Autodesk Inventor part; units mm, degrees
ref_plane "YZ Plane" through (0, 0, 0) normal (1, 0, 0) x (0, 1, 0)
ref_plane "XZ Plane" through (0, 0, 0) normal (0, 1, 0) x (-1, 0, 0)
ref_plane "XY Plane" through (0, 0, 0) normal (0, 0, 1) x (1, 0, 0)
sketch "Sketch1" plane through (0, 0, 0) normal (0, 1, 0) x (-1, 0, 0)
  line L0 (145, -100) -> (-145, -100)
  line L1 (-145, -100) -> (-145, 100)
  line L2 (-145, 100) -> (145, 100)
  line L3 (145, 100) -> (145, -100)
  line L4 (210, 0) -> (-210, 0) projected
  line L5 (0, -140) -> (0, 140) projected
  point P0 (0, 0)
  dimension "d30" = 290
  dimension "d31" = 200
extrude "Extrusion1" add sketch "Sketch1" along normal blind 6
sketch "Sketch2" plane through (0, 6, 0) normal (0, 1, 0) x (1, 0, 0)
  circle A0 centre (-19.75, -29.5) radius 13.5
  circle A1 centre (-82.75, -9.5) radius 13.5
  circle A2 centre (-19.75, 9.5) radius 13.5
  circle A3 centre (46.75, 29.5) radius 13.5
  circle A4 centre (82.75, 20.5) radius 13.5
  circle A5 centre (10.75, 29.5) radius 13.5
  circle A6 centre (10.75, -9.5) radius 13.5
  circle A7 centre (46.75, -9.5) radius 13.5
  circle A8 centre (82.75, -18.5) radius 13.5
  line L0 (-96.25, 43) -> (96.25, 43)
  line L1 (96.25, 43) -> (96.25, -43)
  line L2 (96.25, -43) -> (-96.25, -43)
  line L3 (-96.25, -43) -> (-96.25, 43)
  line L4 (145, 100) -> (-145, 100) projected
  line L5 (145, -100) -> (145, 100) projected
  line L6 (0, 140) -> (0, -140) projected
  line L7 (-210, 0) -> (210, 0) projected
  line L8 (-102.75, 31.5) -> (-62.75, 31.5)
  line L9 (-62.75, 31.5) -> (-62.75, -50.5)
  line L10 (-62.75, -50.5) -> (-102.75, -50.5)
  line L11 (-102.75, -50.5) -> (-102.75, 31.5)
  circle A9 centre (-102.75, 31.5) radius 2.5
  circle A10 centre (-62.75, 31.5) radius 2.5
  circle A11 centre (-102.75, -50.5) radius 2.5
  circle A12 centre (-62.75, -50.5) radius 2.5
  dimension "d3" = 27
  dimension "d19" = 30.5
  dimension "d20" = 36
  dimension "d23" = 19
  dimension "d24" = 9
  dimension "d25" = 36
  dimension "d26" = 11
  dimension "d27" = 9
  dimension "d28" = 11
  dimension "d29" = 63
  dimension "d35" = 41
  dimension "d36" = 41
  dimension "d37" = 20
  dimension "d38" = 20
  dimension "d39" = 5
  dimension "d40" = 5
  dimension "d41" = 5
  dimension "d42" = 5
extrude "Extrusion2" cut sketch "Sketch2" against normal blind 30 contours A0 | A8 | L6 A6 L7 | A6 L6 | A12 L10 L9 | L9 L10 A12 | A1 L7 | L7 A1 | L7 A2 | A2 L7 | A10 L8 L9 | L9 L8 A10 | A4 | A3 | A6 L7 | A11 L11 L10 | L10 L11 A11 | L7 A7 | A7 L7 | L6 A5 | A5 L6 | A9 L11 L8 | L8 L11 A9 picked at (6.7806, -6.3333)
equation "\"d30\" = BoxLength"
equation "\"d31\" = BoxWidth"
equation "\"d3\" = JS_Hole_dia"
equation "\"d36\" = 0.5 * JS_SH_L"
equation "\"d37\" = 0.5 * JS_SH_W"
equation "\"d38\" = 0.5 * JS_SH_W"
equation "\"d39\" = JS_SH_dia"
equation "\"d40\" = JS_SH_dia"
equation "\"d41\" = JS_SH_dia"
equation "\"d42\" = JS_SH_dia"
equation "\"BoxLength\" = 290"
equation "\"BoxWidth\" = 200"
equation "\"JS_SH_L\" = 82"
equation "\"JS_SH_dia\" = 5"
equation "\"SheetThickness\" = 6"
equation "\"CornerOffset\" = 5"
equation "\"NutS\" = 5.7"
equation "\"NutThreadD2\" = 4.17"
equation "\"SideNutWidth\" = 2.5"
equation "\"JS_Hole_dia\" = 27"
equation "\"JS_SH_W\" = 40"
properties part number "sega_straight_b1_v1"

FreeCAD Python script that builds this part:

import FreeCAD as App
import Part
import Sketcher
from FreeCAD import Vector


def add_polygon(sketch, points):
    """Adds a closed chain of lines whose ends are joined by coincident constraints."""
    first, n = sketch.GeometryCount, len(points)
    for a, b in zip(points, points[1:] + points[:1]):
        sketch.addGeometry(Part.LineSegment(App.Vector(*a, 0), App.Vector(*b, 0)), False)
    for i in range(n):
        sketch.addConstraint(Sketcher.Constraint("Coincident", first + i, 2, first + (i + 1) % n, 1))

doc = App.newDocument("Part")
body = doc.addObject("PartDesign::Body", "Body")

# Sketch on XZ plane
sketch1 = doc.addObject("Sketcher::SketchObject", "Sketch")
body.addObject(sketch1)
sketch1.AttachmentSupport = (doc.XZ_Plane, [""])
sketch1.MapMode = "FlatFace"
add_polygon(sketch1, [(-145, -100), (-145, 100), (145, 100), (145, -100)])  # lines 0-3
sketch1.addConstraint([
    Sketcher.Constraint("Vertical", 0),
    Sketcher.Constraint("Horizontal", 1),
    Sketcher.Constraint("Vertical", 2),
    Sketcher.Constraint("Horizontal", 3),
    Sketcher.Constraint("Symmetric", 0, 2, 2, 2, -1, 1),
    Sketcher.Constraint("DistanceX", 1, 1, 1, 2, 290.0),
    Sketcher.Constraint("DistanceY", 0, 1, 0, 2, 200.0),
])
pad1 = doc.addObject("PartDesign::Pad", "Pad")
body.addObject(pad1)
pad1.Profile = sketch1
pad1.Length = 6
pad1.Reversed = True

# Sketch on XZ plane
sketch2 = doc.addObject("Sketcher::SketchObject", "Sketch001")
body.addObject(sketch2)
sketch2.AttachmentSupport = (doc.XZ_Plane, [""])
sketch2.MapMode = "FlatFace"
sketch2.AttachmentOffset = App.Placement(Vector(0, 0, -6), App.Rotation())
sketch2.addGeometry([
    Part.Circle(Vector(-19.75, 29.5, 0), Vector(0, 0, 1), 13.5),  # 0
    Part.Circle(Vector(82.75, 18.5, 0), Vector(0, 0, 1), 13.5),  # 1
    Part.Circle(Vector(10.75, 9.5, 0), Vector(0, 0, 1), 13.5),  # 2
    Part.Circle(Vector(-62.75, 50.5, 0), Vector(0, 0, 1), 2.5),  # 3
    Part.Circle(Vector(-82.75, 9.5, 0), Vector(0, 0, 1), 13.5),  # 4
    Part.Circle(Vector(-19.75, -9.5, 0), Vector(0, 0, 1), 13.5),  # 5
    Part.Circle(Vector(-62.75, -31.5, 0), Vector(0, 0, 1), 2.5),  # 6
    Part.Circle(Vector(82.75, -20.5, 0), Vector(0, 0, 1), 13.5),  # 7
    Part.Circle(Vector(46.75, -29.5, 0), Vector(0, 0, 1), 13.5),  # 8
    Part.Circle(Vector(-102.75, 50.5, 0), Vector(0, 0, 1), 2.5),  # 9
    Part.Circle(Vector(46.75, 9.5, 0), Vector(0, 0, 1), 13.5),  # 10
    Part.Circle(Vector(10.75, -29.5, 0), Vector(0, 0, 1), 13.5),  # 11
    Part.Circle(Vector(-102.75, -31.5, 0), Vector(0, 0, 1), 2.5),  # 12
], False)
sketch2.addConstraint([
    Sketcher.Constraint("Equal", 0, 1),
    Sketcher.Constraint("Equal", 1, 2),
    Sketcher.Constraint("Equal", 2, 4),
    Sketcher.Constraint("Equal", 4, 5),
    Sketcher.Constraint("Equal", 3, 6),
    Sketcher.Constraint("Equal", 5, 7),
    Sketcher.Constraint("Equal", 7, 8),
    Sketcher.Constraint("Equal", 6, 9),
    Sketcher.Constraint("Equal", 8, 10),
    Sketcher.Constraint("Equal", 10, 11),
    Sketcher.Constraint("Equal", 9, 12),
    Sketcher.Constraint("Horizontal", 2, 3, 4, 3),
    Sketcher.Constraint("Horizontal", 3, 3, 9, 3),
    Sketcher.Constraint("Horizontal", 4, 3, 10, 3),
    Sketcher.Constraint("Horizontal", 8, 3, 11, 3),
    Sketcher.Constraint("Horizontal", 6, 3, 12, 3),
    Sketcher.Constraint("Vertical", 0, 3, 5, 3),
    Sketcher.Constraint("Vertical", 3, 3, 6, 3),
    Sketcher.Constraint("Vertical", 1, 3, 7, 3),
    Sketcher.Constraint("Vertical", 8, 3, 10, 3),
    Sketcher.Constraint("Vertical", 2, 3, 11, 3),
    Sketcher.Constraint("Vertical", 9, 3, 12, 3),
    Sketcher.Constraint("Diameter", 0, 27.0),
    Sketcher.Constraint("Diameter", 3, 5.0),
    Sketcher.Constraint("DistanceY", 1, 3, 0, 3, 11.0),
    Sketcher.Constraint("DistanceY", 2, 3, 0, 3, 20.0),
    Sketcher.Constraint("DistanceY", 2, 3, 3, 3, 41.0),
    Sketcher.Constraint("DistanceX", 4, 3, 3, 3, 20.0),
    Sketcher.Constraint("DistanceX", 4, 3, 0, 3, 63.0),
    Sketcher.Constraint("DistanceY", 5, 3, 2, 3, 19.0),
    Sketcher.Constraint("DistanceY", 6, 3, 4, 3, 41.0),
    Sketcher.Constraint("DistanceY", 7, 3, 5, 3, 11.0),
    Sketcher.Constraint("DistanceX", 8, 3, 7, 3, 36.0),
    Sketcher.Constraint("DistanceY", 8, 3, 7, 3, 9.0),
    Sketcher.Constraint("DistanceX", 2, 3, 8, 3, 36.0),
    Sketcher.Constraint("DistanceX", 9, 3, 4, 3, 20.0),
    Sketcher.Constraint("DistanceX", 0, 3, 2, 3, 30.5),
    Sketcher.Constraint("DistanceY", -1, 1, 0, 3, 29.5),
    Sketcher.Constraint("DistanceX", 0, 3, -1, 1, 19.75),
])
pocket1 = doc.addObject("PartDesign::Pocket", "Pocket")
body.addObject(pocket1)
pocket1.Profile = sketch2
pocket1.Length = 30
pocket1.Reversed = True

doc.recompute()
